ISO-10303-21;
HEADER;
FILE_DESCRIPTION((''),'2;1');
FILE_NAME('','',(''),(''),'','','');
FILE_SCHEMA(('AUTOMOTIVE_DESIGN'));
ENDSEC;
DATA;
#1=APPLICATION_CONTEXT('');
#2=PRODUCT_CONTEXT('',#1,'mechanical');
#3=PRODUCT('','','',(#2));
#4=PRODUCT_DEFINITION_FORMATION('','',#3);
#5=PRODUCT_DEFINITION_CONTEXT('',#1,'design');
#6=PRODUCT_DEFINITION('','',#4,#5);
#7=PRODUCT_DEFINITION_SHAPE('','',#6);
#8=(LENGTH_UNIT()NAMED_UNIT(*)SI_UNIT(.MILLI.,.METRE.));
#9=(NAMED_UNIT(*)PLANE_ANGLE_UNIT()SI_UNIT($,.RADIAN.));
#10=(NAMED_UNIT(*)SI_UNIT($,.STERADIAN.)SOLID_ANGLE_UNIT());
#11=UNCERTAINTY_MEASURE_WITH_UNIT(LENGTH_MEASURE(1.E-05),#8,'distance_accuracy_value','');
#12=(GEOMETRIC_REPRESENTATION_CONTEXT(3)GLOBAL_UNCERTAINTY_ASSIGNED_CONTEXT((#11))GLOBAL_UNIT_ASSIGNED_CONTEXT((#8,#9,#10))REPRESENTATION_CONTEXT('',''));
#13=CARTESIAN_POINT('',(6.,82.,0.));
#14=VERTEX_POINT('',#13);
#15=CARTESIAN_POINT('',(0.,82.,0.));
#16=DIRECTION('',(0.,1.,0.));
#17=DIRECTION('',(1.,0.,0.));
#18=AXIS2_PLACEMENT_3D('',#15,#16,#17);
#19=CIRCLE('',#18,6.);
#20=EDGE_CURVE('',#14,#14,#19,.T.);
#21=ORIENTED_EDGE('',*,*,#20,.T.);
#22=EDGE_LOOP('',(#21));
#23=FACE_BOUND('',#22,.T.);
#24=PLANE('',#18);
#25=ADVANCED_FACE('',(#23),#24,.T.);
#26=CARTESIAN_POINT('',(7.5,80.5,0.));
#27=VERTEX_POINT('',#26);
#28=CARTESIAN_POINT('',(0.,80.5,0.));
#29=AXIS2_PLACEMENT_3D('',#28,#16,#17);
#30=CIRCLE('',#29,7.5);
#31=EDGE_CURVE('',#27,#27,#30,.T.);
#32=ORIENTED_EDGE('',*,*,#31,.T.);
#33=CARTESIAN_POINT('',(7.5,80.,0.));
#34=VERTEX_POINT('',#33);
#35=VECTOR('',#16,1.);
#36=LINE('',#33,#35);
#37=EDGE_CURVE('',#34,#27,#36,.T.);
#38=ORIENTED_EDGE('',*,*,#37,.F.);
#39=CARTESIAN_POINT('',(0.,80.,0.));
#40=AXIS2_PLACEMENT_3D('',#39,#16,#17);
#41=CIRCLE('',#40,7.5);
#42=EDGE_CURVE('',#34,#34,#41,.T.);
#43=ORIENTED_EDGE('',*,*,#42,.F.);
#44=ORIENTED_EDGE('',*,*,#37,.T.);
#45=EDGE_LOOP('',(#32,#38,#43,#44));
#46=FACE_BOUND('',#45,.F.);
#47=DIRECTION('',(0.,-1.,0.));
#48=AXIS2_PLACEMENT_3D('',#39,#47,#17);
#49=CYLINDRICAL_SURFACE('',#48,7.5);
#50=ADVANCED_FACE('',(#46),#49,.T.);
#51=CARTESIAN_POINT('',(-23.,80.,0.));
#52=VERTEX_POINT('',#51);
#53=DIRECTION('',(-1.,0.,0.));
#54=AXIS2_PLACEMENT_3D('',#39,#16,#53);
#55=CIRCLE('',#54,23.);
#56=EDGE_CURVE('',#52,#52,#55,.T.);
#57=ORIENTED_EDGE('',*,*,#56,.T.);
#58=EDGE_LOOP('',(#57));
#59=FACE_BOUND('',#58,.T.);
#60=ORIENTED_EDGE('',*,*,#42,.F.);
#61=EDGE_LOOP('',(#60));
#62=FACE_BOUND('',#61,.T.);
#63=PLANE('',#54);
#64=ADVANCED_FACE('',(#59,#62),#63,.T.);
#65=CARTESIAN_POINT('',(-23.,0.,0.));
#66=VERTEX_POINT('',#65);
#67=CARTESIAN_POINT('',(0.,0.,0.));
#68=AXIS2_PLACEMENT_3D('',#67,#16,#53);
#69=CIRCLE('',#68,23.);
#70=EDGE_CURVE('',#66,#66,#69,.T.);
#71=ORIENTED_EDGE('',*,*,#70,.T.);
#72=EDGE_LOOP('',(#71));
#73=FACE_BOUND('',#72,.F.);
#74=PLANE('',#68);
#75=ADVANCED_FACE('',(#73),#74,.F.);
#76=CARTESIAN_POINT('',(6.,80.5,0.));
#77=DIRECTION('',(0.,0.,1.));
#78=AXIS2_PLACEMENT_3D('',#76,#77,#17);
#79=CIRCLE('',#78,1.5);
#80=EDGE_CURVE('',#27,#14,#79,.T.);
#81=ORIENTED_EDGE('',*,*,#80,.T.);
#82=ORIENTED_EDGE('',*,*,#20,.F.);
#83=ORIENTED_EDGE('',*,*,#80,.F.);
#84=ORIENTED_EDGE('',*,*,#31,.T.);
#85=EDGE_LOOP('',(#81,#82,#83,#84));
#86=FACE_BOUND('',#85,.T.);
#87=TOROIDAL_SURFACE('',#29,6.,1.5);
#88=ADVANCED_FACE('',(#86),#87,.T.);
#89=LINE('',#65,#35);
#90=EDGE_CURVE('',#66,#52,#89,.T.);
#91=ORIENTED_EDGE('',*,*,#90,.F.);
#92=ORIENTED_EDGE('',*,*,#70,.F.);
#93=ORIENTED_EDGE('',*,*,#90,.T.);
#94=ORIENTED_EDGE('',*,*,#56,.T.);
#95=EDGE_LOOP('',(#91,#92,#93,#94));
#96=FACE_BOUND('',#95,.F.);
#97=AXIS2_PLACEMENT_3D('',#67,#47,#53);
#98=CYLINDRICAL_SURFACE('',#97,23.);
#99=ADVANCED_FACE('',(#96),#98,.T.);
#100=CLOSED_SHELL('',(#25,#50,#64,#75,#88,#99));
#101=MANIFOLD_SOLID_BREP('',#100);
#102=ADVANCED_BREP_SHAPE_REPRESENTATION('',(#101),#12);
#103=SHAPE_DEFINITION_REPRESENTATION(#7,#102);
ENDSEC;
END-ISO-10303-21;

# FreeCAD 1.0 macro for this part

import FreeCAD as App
import Part
import Sketcher

V = App.Vector
Q = App.Units.Quantity


def edges_at(feature, points):
    """Names of the edges that pass closest to the given points."""
    edges = feature.Shape.Edges
    near = lambda p: min(range(len(edges)), key=lambda i: edges[i].distToShape(Part.Vertex(*p))[0])
    return sorted({f"Edge{near(p) + 1}" for p in points})

doc = App.newDocument("Part")
params = doc.addObject("Spreadsheet::Sheet", "Params")
for row, (alias, value) in enumerate([
    ("sketch1_diameter", "46 mm"),
    ("pad1_length", "80 mm"),
    ("sketch2_diameter", "15 mm"),
    ("pad2_length", "2 mm"),
    ("fillet_radius", "1.5 mm"),
], start=1):
    params.set(f"A{row}", alias)
    params.set(f"B{row}", "=" + value)
    params.setAlias(f"B{row}", alias)

body = doc.addObject("PartDesign::Body", "Body")

sketch1 = body.newObject("Sketcher::SketchObject", "Sketch")
sketch1.AttachmentSupport = (doc.getObject("XZ_Plane"), [""])
sketch1.MapMode = "FlatFace"
sketch1.addGeometry(Part.Circle(V(0, 0, 0), V(0, 0, 1), 23), False)
sketch1.addConstraint([
    Sketcher.Constraint("Coincident", 0, 3, -1, 1),
    Sketcher.Constraint("Diameter", 0, Q("46 mm")),
])
sketch1.setExpression("Constraints[1]", "Params.sketch1_diameter")
pad1 = body.newObject("PartDesign::Pad", "Pad")
pad1.Profile = sketch1
pad1.setExpression("Length", "Params.pad1_length")
pad1.Reversed = True

sketch2 = body.newObject("Sketcher::SketchObject", "Sketch001")
sketch2.AttachmentSupport = (doc.getObject("XZ_Plane"), [""])
sketch2.MapMode = "FlatFace"
sketch2.AttachmentOffset = App.Placement(V(0, 0, -80), App.Rotation())
sketch2.addGeometry(Part.Circle(V(0, 0, 0), V(0, 0, 1), 8), False)
sketch2.addConstraint([
    Sketcher.Constraint("Coincident", 0, 3, -1, 1),
    Sketcher.Constraint("Diameter", 0, Q("15 mm")),
])
sketch2.setExpression("Constraints[1]", "Params.sketch2_diameter")
pad2 = body.newObject("PartDesign::Pad", "Pad001")
pad2.Profile = sketch2
pad2.setExpression("Length", "Params.pad2_length")
pad2.Reversed = True
doc.recompute()

fillet = body.newObject("PartDesign::Fillet", "Fillet")
fillet.Base = (pad2, edges_at(pad2, [(-7.5, 82, 0)]))
fillet.setExpression("Radius", "Params.fillet_radius")

doc.recompute()
